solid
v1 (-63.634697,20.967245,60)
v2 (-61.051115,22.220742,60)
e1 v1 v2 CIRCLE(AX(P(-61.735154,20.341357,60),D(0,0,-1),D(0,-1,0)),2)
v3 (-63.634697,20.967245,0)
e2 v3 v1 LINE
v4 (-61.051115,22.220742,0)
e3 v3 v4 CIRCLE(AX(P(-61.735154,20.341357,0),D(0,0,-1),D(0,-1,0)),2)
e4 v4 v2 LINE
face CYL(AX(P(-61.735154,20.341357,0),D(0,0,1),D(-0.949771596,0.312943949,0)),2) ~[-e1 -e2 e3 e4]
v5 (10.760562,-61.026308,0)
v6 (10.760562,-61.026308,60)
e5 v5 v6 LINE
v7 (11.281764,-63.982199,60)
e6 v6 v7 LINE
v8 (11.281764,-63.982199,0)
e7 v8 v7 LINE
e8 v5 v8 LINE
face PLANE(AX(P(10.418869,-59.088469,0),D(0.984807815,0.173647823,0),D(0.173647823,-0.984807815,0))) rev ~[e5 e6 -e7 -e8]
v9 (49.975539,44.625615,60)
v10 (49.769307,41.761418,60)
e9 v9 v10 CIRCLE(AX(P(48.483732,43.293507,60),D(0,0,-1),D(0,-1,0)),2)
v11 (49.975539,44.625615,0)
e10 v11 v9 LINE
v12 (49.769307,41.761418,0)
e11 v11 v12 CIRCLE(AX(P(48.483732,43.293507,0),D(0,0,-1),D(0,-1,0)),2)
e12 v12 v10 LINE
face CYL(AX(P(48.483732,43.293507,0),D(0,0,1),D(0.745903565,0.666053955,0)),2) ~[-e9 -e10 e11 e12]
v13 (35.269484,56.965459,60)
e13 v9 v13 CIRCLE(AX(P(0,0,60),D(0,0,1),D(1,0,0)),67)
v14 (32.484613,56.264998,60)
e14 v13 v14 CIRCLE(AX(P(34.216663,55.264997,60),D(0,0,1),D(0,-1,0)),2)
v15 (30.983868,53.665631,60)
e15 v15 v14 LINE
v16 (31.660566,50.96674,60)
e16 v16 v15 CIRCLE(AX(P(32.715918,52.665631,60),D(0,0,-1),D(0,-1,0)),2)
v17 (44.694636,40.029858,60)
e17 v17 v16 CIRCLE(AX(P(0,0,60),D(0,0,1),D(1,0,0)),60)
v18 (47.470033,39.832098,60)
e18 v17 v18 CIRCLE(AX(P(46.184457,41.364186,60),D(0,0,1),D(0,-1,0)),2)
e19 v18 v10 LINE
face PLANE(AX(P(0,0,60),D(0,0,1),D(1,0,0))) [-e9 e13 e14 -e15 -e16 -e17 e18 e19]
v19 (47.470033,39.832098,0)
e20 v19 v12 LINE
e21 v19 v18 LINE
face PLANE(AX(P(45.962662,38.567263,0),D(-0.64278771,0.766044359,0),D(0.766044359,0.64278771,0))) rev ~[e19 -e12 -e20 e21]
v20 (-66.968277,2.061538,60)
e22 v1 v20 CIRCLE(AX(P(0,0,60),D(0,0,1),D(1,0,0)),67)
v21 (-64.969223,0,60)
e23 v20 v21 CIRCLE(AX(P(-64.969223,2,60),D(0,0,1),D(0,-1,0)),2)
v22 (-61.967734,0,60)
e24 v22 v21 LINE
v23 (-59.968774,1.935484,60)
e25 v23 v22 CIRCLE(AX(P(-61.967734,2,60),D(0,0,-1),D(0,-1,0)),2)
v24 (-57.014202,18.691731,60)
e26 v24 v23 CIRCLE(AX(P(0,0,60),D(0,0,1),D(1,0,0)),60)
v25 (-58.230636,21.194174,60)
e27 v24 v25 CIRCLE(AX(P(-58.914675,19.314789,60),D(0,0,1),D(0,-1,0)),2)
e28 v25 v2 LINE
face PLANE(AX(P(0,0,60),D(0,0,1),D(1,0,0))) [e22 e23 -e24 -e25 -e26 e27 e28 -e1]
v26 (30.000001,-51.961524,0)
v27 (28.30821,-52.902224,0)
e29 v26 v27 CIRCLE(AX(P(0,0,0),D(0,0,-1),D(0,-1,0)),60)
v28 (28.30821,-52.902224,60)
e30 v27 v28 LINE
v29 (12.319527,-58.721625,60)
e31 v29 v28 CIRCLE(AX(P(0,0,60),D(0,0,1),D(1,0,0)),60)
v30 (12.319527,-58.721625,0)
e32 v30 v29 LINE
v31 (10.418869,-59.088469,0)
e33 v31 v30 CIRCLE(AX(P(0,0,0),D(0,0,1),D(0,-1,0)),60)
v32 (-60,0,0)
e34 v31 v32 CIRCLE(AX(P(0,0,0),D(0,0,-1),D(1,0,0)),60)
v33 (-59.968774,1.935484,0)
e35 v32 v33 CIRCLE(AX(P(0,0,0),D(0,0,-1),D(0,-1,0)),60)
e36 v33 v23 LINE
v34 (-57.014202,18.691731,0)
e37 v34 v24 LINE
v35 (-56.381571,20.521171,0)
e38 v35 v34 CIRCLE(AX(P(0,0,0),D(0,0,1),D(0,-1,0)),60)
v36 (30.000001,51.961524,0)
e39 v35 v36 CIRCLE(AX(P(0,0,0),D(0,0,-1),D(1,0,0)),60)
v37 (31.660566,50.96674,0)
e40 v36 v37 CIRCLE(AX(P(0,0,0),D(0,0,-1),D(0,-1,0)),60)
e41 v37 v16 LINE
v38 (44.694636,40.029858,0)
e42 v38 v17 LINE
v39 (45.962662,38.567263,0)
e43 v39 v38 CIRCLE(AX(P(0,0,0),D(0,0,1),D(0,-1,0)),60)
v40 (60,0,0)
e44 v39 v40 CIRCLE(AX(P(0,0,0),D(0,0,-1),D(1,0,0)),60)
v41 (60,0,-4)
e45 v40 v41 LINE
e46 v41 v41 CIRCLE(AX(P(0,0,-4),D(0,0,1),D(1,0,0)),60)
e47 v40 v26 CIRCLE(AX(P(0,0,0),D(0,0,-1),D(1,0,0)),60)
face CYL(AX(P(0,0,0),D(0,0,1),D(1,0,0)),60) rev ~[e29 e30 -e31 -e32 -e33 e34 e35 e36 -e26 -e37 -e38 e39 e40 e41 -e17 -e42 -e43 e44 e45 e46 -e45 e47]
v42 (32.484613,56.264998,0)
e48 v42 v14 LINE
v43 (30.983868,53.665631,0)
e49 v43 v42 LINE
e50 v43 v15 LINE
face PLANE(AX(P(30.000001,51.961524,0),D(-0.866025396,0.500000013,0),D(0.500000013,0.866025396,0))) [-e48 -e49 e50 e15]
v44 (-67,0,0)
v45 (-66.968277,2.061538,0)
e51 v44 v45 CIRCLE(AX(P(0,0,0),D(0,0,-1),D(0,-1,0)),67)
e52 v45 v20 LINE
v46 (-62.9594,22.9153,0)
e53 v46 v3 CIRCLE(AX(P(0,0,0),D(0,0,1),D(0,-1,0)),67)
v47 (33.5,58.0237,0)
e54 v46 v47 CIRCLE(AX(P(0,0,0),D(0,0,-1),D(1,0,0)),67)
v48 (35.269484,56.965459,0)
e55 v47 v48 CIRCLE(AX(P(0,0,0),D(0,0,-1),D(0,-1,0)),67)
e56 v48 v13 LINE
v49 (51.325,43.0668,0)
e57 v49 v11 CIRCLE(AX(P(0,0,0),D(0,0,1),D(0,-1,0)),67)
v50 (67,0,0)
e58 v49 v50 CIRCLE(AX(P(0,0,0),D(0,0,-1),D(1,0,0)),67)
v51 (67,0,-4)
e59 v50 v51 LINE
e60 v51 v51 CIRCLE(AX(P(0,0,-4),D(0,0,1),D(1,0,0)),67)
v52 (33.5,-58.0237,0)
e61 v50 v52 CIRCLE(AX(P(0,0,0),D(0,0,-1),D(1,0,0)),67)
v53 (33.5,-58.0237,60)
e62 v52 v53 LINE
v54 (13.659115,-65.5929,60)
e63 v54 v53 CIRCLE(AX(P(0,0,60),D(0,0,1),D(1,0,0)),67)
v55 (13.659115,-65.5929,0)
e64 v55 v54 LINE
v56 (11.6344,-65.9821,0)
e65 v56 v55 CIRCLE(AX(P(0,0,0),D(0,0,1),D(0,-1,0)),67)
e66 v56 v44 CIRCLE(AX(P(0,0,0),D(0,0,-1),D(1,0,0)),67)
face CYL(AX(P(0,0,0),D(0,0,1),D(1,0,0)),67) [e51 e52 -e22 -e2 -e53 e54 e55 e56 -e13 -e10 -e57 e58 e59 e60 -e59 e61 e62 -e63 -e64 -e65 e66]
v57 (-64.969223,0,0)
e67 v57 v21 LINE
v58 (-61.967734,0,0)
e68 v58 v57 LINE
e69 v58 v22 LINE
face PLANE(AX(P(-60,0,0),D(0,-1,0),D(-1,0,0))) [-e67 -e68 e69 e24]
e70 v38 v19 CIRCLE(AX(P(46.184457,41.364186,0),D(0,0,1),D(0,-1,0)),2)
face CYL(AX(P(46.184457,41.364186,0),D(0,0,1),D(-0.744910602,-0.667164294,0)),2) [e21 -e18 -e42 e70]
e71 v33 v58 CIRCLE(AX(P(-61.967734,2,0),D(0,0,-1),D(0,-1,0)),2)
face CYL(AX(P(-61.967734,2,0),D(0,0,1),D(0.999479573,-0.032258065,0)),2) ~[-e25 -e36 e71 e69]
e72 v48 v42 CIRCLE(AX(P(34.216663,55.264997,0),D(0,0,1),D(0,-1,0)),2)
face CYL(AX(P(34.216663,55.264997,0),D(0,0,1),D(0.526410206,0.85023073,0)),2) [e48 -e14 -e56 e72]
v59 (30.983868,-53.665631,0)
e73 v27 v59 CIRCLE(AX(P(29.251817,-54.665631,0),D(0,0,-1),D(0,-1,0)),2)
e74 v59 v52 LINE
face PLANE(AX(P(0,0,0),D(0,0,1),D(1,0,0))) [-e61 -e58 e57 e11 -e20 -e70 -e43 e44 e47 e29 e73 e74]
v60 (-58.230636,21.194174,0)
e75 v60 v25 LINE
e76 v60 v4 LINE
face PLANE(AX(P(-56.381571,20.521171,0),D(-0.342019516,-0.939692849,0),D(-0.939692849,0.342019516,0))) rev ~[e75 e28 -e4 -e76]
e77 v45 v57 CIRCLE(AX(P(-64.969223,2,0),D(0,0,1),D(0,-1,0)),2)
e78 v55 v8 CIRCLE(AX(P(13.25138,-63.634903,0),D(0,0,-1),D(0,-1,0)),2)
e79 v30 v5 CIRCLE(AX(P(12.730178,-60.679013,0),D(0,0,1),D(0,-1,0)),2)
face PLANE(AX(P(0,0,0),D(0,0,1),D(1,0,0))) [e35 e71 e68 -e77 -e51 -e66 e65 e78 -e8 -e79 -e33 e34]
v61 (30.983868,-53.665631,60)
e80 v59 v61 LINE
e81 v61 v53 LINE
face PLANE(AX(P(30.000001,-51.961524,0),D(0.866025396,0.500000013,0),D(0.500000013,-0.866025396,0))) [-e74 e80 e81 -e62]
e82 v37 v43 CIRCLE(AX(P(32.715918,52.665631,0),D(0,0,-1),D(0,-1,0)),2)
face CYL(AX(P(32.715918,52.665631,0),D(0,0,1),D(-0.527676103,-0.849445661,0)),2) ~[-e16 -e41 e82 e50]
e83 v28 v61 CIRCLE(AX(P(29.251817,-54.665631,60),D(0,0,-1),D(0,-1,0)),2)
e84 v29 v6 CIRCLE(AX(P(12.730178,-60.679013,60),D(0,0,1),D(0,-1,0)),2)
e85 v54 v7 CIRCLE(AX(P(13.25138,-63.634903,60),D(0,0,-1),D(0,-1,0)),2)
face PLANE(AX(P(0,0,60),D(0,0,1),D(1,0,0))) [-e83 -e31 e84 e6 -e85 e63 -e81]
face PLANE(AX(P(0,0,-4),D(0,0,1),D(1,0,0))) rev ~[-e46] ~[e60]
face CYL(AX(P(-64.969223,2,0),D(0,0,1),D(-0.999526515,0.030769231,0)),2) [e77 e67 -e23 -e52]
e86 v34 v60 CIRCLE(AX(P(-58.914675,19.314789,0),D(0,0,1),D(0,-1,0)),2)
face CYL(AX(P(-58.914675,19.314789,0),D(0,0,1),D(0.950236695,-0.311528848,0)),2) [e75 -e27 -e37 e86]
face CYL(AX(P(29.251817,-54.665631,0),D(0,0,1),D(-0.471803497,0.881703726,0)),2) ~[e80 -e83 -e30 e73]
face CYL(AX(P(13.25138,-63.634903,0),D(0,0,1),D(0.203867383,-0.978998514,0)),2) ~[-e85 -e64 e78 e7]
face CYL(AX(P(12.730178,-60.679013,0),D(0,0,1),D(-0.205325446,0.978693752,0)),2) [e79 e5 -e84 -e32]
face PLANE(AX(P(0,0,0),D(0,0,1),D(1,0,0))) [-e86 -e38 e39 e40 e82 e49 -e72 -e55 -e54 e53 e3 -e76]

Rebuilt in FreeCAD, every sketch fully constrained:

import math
import FreeCAD as App
import Part
import Sketcher
Q = App.Units.Quantity


def edges_at(feature, points):
    """Names of the edges that pass closest to the given points."""
    edges = feature.Shape.Edges
    near = lambda p: min(range(len(edges)), key=lambda i: edges[i].distToShape(Part.Vertex(*p))[0])
    return sorted({f"Edge{near(p) + 1}" for p in points})

doc = App.newDocument("Part")
body = doc.addObject("PartDesign::Body", "Body")

sketch1 = doc.addObject("Sketcher::SketchObject", "Sketch")
body.addObject(sketch1)
sketch1.AttachmentSupport = (doc.XY_Plane, [""])
sketch1.MapMode = "FlatFace"
sketch1.addGeometry([
    Part.Circle(App.Vector(0, 0, 0), App.Vector(0, 0, 1), 67),
    Part.Circle(App.Vector(0, 0, 0), App.Vector(0, 0, 1), 60),
], False)
sketch1.addConstraint([
    Sketcher.Constraint("Coincident", 0, 3, -1, 1),
    Sketcher.Constraint("Coincident", 1, 3, -1, 1),
    Sketcher.Constraint("Diameter", 0, Q("134 mm")),
    Sketcher.Constraint("Diameter", 1, Q("120 mm")),
])
pad1 = doc.addObject("PartDesign::Pad", "Pad")
body.addObject(pad1)
pad1.Profile = sketch1
pad1.Length = 4
pad1.Reversed = True

sketch2 = doc.addObject("Sketcher::SketchObject", "Sketch001")
body.addObject(sketch2)
sketch2.AttachmentSupport = (doc.XY_Plane, [""])
sketch2.MapMode = "FlatFace"
sketch2.addGeometry([
    Part.LineSegment(App.Vector(46, 39, 0), App.Vector(51, 43, 0)),
    Part.ArcOfCircle(Part.Circle(App.Vector(0, 0, 0), App.Vector(0, 0, 1), 67), math.radians(40), math.radians(60)),
    Part.LineSegment(App.Vector(34, 58, 0), App.Vector(30, 52, 0)),
    Part.ArcOfCircle(Part.Circle(App.Vector(0, 0, 0), App.Vector(0, 0, 1), 60), math.radians(40), math.radians(60)),
    Part.ArcOfCircle(Part.Circle(App.Vector(0, 0, 0), App.Vector(0, 0, 1), 67), math.radians(-80), math.radians(-60)),
    Part.LineSegment(App.Vector(34, -58, 0), App.Vector(30, -52, 0)),
    Part.ArcOfCircle(Part.Circle(App.Vector(0, 0, 0), App.Vector(0, 0, 1), 60), math.radians(-80), math.radians(-60)),
    Part.LineSegment(App.Vector(10, -59, 0), App.Vector(12, -66, 0)),
    Part.LineSegment(App.Vector(-56, 21, 0), App.Vector(-63, 23, 0)),
    Part.ArcOfCircle(Part.Circle(App.Vector(0, 0, 0), App.Vector(0, 0, 1), 67), math.radians(160), math.radians(180)),
    Part.LineSegment(App.Vector(-67, 0, 0), App.Vector(-60, 0, 0)),
    Part.ArcOfCircle(Part.Circle(App.Vector(0, 0, 0), App.Vector(0, 0, 1), 60), math.radians(160), math.radians(180)),
], False)
sketch2.addConstraint([
    Sketcher.Constraint("Coincident", 0, 2, 1, 1),
    Sketcher.Constraint("Coincident", 1, 2, 2, 1),
    Sketcher.Constraint("Coincident", 2, 2, 3, 2),
    Sketcher.Constraint("Coincident", 3, 1, 0, 1),
    Sketcher.Constraint("Coincident", 4, 2, 5, 1),
    Sketcher.Constraint("Coincident", 5, 2, 6, 2),
    Sketcher.Constraint("Coincident", 6, 1, 7, 1),
    Sketcher.Constraint("Coincident", 7, 2, 4, 1),
    Sketcher.Constraint("Coincident", 8, 2, 9, 1),
    Sketcher.Constraint("Coincident", 9, 2, 10, 1),
    Sketcher.Constraint("Coincident", 10, 2, 11, 2),
    Sketcher.Constraint("Coincident", 11, 1, 8, 1),
    Sketcher.Constraint("Horizontal", 10),
    Sketcher.Constraint("Coincident", 1, 3, -1, 1),
    Sketcher.Constraint("Coincident", 3, 3, -1, 1),
    Sketcher.Constraint("Coincident", 4, 3, -1, 1),
    Sketcher.Constraint("Coincident", 6, 3, -1, 1),
    Sketcher.Constraint("Coincident", 9, 3, -1, 1),
    Sketcher.Constraint("Coincident", 11, 3, -1, 1),
    Sketcher.Constraint("Equal", 1, 4),
    Sketcher.Constraint("Equal", 3, 6),
    Sketcher.Constraint("Equal", 4, 9),
    Sketcher.Constraint("Equal", 6, 11),
    Sketcher.Constraint("PointOnObject", 9, 2, -1),
    Sketcher.Constraint("Vertical", 1, 2, 4, 2),
    Sketcher.Constraint("Vertical", 2, 2, 5, 2),
    Sketcher.Constraint("Radius", 1, Q("67 mm")),
    Sketcher.Constraint("Radius", 3, Q("60 mm")),
    Sketcher.Constraint("Angle", 2, Q("-120 deg")),
    Sketcher.Constraint("Angle", 8, Q("160 deg")),
    Sketcher.Constraint("Angle", 0, Q("40 deg")),
    Sketcher.Constraint("Angle", 7, Q("-80 deg")),
    Sketcher.Constraint("DistanceX", -1, 1, 2, 2, Q("30 mm")),
    Sketcher.Constraint("DistanceX", -1, 1, 0, 2, Q("51.325 mm")),
    Sketcher.Constraint("DistanceY", 7, 2, -1, 1, Q("65.982 mm")),
    Sketcher.Constraint("DistanceX", 8, 2, -1, 1, Q("62.9594 mm")),
])
pad2 = doc.addObject("PartDesign::Pad", "Pad001")
body.addObject(pad2)
pad2.Profile = sketch2
pad2.Length = 60
doc.recompute()

fillet = doc.addObject("PartDesign::Fillet", "Fillet")
body.addObject(fillet)
fillet.Base = (pad2, edges_at(pad2, [
    (-62.959, 22.915, 30),
    (-67, 0, 30),
    (-56.382, 20.521, 30),
    (-60, 0, 30),
    (33.5, 58.024, 30),
    (51.325, 43.067, 30),
    (45.963, 38.567, 30),
    (30, 51.962, 30),
    (11.634, -65.982, 30),
    (10.419, -59.089, 30),
    (30, -51.962, 30),
]))
fillet.Radius = 2

doc.recompute()
